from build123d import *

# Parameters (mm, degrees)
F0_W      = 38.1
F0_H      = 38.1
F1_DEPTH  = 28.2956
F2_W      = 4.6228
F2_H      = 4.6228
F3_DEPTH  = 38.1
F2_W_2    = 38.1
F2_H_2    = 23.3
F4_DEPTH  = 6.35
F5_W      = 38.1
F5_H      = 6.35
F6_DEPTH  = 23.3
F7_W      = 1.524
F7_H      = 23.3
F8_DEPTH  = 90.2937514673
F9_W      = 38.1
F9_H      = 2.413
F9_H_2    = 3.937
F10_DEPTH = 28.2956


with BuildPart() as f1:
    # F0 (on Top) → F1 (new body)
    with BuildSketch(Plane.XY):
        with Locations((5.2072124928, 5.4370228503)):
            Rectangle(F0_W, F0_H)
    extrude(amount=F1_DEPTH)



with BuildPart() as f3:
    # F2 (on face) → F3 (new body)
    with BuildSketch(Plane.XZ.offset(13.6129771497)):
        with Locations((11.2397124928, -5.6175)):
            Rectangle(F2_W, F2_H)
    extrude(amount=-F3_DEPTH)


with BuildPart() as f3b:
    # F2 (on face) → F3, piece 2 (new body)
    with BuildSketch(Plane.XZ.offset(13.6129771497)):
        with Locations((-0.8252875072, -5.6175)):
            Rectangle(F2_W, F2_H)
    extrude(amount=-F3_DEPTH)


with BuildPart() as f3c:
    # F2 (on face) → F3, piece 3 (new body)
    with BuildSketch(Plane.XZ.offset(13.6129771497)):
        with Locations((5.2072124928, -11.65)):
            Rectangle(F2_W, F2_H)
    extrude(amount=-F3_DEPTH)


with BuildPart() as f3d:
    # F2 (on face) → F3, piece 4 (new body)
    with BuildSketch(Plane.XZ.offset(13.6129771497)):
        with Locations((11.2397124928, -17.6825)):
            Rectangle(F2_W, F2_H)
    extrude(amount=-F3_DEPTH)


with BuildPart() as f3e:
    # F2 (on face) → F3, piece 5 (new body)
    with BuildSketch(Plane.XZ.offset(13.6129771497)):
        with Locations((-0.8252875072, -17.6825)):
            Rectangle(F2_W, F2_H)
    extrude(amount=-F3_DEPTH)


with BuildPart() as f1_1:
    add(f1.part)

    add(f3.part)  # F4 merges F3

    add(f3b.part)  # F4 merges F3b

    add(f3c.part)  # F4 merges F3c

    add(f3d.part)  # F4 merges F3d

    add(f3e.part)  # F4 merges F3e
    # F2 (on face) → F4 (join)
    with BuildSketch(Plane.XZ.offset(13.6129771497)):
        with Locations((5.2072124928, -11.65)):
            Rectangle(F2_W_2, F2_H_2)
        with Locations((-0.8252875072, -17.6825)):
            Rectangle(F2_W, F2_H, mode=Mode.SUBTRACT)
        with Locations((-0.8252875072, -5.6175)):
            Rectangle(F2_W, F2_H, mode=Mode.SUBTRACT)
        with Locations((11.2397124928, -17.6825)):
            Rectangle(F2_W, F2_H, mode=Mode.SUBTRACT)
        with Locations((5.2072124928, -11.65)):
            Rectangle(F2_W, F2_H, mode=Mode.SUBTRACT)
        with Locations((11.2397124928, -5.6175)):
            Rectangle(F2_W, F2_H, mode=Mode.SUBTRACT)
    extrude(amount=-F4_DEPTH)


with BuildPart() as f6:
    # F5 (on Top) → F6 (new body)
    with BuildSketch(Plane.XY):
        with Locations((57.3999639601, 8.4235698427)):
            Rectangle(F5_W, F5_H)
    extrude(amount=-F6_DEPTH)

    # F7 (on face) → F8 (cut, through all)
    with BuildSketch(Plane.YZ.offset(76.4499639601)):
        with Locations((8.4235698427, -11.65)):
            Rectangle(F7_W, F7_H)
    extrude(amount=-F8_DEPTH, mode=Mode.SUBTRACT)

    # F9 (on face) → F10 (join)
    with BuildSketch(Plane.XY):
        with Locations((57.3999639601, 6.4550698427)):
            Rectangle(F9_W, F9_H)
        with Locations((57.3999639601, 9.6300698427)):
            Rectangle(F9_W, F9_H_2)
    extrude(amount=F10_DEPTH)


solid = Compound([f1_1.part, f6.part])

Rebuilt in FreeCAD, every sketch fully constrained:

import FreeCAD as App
import Part
import Sketcher

V = App.Vector
Q = App.Units.Quantity


def add_polygon(sketch, points):
    """Adds a closed chain of lines whose ends are joined by coincident constraints."""
    first, n = sketch.GeometryCount, len(points)
    for a, b in zip(points, points[1:] + points[:1]):
        sketch.addGeometry(Part.LineSegment(App.Vector(*a, 0), App.Vector(*b, 0)), False)
    for i in range(n):
        sketch.addConstraint(Sketcher.Constraint("Coincident", first + i, 2, first + (i + 1) % n, 1))

doc = App.newDocument("Part")
body = doc.addObject("PartDesign::Body", "Body")

sketch1 = body.newObject("Sketcher::SketchObject", "Sketch")
sketch1.AttachmentSupport = (doc.getObject("XY_Plane"), [""])
sketch1.MapMode = "FlatFace"
add_polygon(sketch1, [(-14, 24), (-14, -14), (24, -14), (24, 24)])
sketch1.addConstraint([
    Sketcher.Constraint("Vertical", 0),
    Sketcher.Constraint("Horizontal", 1),
    Sketcher.Constraint("Vertical", 2),
    Sketcher.Constraint("Horizontal", 3),
    Sketcher.Constraint("Equal", 3, 0),
    Sketcher.Constraint("DistanceX", 1, 1, 1, 2, Q("1.5 in")),
    Sketcher.Constraint("DistanceX", 0, 2, -1, 1, 13.842788),
    Sketcher.Constraint("DistanceY", 0, 2, -1, 1, 13.612977),
])
pad1 = body.newObject("PartDesign::Pad", "Pad")
pad1.Profile = sketch1
pad1.Length = Q("1.114 in")
body2 = doc.addObject("PartDesign::Body", "Body001")

sketch2 = body2.newObject("Sketcher::SketchObject", "Sketch001")
sketch2.AttachmentSupport = (doc.getObject("XZ_Plane001"), [""])
sketch2.MapMode = "FlatFace"
sketch2.AttachmentOffset = App.Placement(V(0, 0, 13.612977), App.Rotation())
add_polygon(sketch2, [(8.9, -3.3), (8.9, -7.9), (13.6, -7.9), (13.6, -3.3)])
sketch2.addConstraint([
    Sketcher.Constraint("Vertical", 0),
    Sketcher.Constraint("Horizontal", 1),
    Sketcher.Constraint("Vertical", 2),
    Sketcher.Constraint("Horizontal", 3),
    Sketcher.Constraint("Equal", 3, 0),
    Sketcher.Constraint("DistanceX", 1, 1, 1, 2, Q("0.182 in")),
    Sketcher.Constraint("DistanceY", 0, 2, -1, 1, 7.9289),
    Sketcher.Constraint("DistanceX", -1, 1, 0, 2, 8.928312),
])
pad2 = body2.newObject("PartDesign::Pad", "Pad001")
pad2.Profile = sketch2
pad2.Length = Q("1.5 in")
pad2.Reversed = True
body3 = doc.addObject("PartDesign::Body", "Body002")

sketch3 = body3.newObject("Sketcher::SketchObject", "Sketch002")
sketch3.AttachmentSupport = (doc.getObject("XZ_Plane002"), [""])
sketch3.MapMode = "FlatFace"
sketch3.AttachmentOffset = App.Placement(V(0, 0, 13.612977), App.Rotation())
add_polygon(sketch3, [(-3.1, -3.3), (-3.1, -7.9), (1.5, -7.9), (1.5, -3.3)])
sketch3.addConstraint([
    Sketcher.Constraint("Vertical", 0),
    Sketcher.Constraint("Horizontal", 1),
    Sketcher.Constraint("Vertical", 2),
    Sketcher.Constraint("Horizontal", 3),
    Sketcher.Constraint("Equal", 3, 0),
    Sketcher.Constraint("DistanceX", 1, 1, 1, 2, Q("0.182 in")),
    Sketcher.Constraint("DistanceY", 0, 2, -1, 1, 7.9289),
    Sketcher.Constraint("DistanceX", 0, 2, -1, 1, 3.136688),
])
pad3 = body3.newObject("PartDesign::Pad", "Pad002")
pad3.Profile = sketch3
pad3.Length = Q("1.5 in")
pad3.Reversed = True
body4 = doc.addObject("PartDesign::Body", "Body003")

sketch4 = body4.newObject("Sketcher::SketchObject", "Sketch003")
sketch4.AttachmentSupport = (doc.getObject("XZ_Plane003"), [""])
sketch4.MapMode = "FlatFace"
sketch4.AttachmentOffset = App.Placement(V(0, 0, 13.612977), App.Rotation())
add_polygon(sketch4, [(2.9, -9.3), (2.9, -14), (7.5, -14), (7.5, -9.3)])
sketch4.addConstraint([
    Sketcher.Constraint("Vertical", 0),
    Sketcher.Constraint("Horizontal", 1),
    Sketcher.Constraint("Vertical", 2),
    Sketcher.Constraint("Horizontal", 3),
    Sketcher.Constraint("Equal", 3, 0),
    Sketcher.Constraint("DistanceX", 1, 1, 1, 2, Q("0.182 in")),
    Sketcher.Constraint("DistanceY", 0, 2, -1, 1, 13.9614),
    Sketcher.Constraint("DistanceX", -1, 1, 0, 2, 2.895812),
])
pad4 = body4.newObject("PartDesign::Pad", "Pad003")
pad4.Profile = sketch4
pad4.Length = Q("1.5 in")
pad4.Reversed = True
body5 = doc.addObject("PartDesign::Body", "Body004")

sketch5 = body5.newObject("Sketcher::SketchObject", "Sketch004")
sketch5.AttachmentSupport = (doc.getObject("XZ_Plane004"), [""])
sketch5.MapMode = "FlatFace"
sketch5.AttachmentOffset = App.Placement(V(0, 0, 13.612977), App.Rotation())
add_polygon(sketch5, [(8.9, -15.4), (8.9, -20), (13.6, -20), (13.6, -15.4)])
sketch5.addConstraint([
    Sketcher.Constraint("Vertical", 0),
    Sketcher.Constraint("Horizontal", 1),
    Sketcher.Constraint("Vertical", 2),
    Sketcher.Constraint("Horizontal", 3),
    Sketcher.Constraint("Equal", 3, 0),
    Sketcher.Constraint("DistanceX", 1, 1, 1, 2, Q("0.182 in")),
    Sketcher.Constraint("DistanceY", 0, 2, -1, 1, 19.9939),
    Sketcher.Constraint("DistanceX", -1, 1, 0, 2, 8.928312),
])
pad5 = body5.newObject("PartDesign::Pad", "Pad004")
pad5.Profile = sketch5
pad5.Length = Q("1.5 in")
pad5.Reversed = True
body6 = doc.addObject("PartDesign::Body", "Body005")

sketch6 = body6.newObject("Sketcher::SketchObject", "Sketch005")
sketch6.AttachmentSupport = (doc.getObject("XZ_Plane005"), [""])
sketch6.MapMode = "FlatFace"
sketch6.AttachmentOffset = App.Placement(V(0, 0, 13.612977), App.Rotation())
add_polygon(sketch6, [(-3.1, -15.4), (-3.1, -20), (1.5, -20), (1.5, -15.4)])
sketch6.addConstraint([
    Sketcher.Constraint("Vertical", 0),
    Sketcher.Constraint("Horizontal", 1),
    Sketcher.Constraint("Vertical", 2),
    Sketcher.Constraint("Horizontal", 3),
    Sketcher.Constraint("Equal", 3, 0),
    Sketcher.Constraint("DistanceX", 1, 1, 1, 2, Q("0.182 in")),
    Sketcher.Constraint("DistanceY", 0, 2, -1, 1, 19.9939),
    Sketcher.Constraint("DistanceX", 0, 2, -1, 1, 3.136688),
])
pad6 = body6.newObject("PartDesign::Pad", "Pad005")
pad6.Profile = sketch6
pad6.Length = Q("1.5 in")
pad6.Reversed = True
body.AllowCompound = True
doc.recompute()

boolean = body.newObject("PartDesign::Boolean", "Boolean")
boolean.Type = "Fuse"
boolean.addObjects([body2])
doc.recompute()

boolean2 = body.newObject("PartDesign::Boolean", "Boolean001")
boolean2.Type = "Fuse"
boolean2.addObjects([body3])
doc.recompute()

boolean3 = body.newObject("PartDesign::Boolean", "Boolean002")
boolean3.Type = "Fuse"
boolean3.addObjects([body4])
doc.recompute()

boolean4 = body.newObject("PartDesign::Boolean", "Boolean003")
boolean4.Type = "Fuse"
boolean4.addObjects([body5])
doc.recompute()

boolean5 = body.newObject("PartDesign::Boolean", "Boolean004")
boolean5.Type = "Fuse"
boolean5.addObjects([body6])

sketch7 = body.newObject("Sketcher::SketchObject", "Sketch006")
sketch7.AttachmentSupport = (doc.getObject("XZ_Plane"), [""])
sketch7.MapMode = "FlatFace"
sketch7.AttachmentOffset = App.Placement(V(0, 0, 13.612977), App.Rotation())
add_polygon(sketch7, [(-13.8, 0), (-13.8, -23.3), (24.3, -23.3), (24.3, 0)])
add_polygon(sketch7, [(1.5, -20), (-3.1, -20), (-3.1, -15.4), (1.5, -15.4)])
add_polygon(sketch7, [(13.6, -20), (8.9, -20), (8.9, -15.4), (13.6, -15.4)])
add_polygon(sketch7, [(7.5, -14), (2.9, -14), (2.9, -9.3), (7.5, -9.3)])
add_polygon(sketch7, [(1.5, -7.9), (-3.1, -7.9), (-3.1, -3.3), (1.5, -3.3)])
add_polygon(sketch7, [(13.6, -7.9), (8.9, -7.9), (8.9, -3.3), (13.6, -3.3)])
sketch7.addConstraint([
    Sketcher.Constraint("Vertical", 0),
    Sketcher.Constraint("Horizontal", 1),
    Sketcher.Constraint("Vertical", 2),
    Sketcher.Constraint("Horizontal", 3),
    Sketcher.Constraint("Horizontal", 4),
    Sketcher.Constraint("Vertical", 5),
    Sketcher.Constraint("Horizontal", 6),
    Sketcher.Constraint("Vertical", 7),
    Sketcher.Constraint("Horizontal", 8),
    Sketcher.Constraint("Vertical", 9),
    Sketcher.Constraint("Horizontal", 10),
    Sketcher.Constraint("Vertical", 11),
    Sketcher.Constraint("Horizontal", 12),
    Sketcher.Constraint("Vertical", 13),
    Sketcher.Constraint("Horizontal", 14),
    Sketcher.Constraint("Vertical", 15),
    Sketcher.Constraint("Horizontal", 16),
    Sketcher.Constraint("Vertical", 17),
    Sketcher.Constraint("Horizontal", 18),
    Sketcher.Constraint("Vertical", 19),
    Sketcher.Constraint("Horizontal", 20),
    Sketcher.Constraint("Vertical", 21),
    Sketcher.Constraint("Horizontal", 22),
    Sketcher.Constraint("Vertical", 23),
    Sketcher.Constraint("PointOnObject", 2, 2, -1),
    Sketcher.Constraint("Horizontal", 7, 2, 8, 2),
    Sketcher.Constraint("Horizontal", 6, 2, 9, 2),
    Sketcher.Constraint("Horizontal", 19, 2, 20, 2),
    Sketcher.Constraint("Horizontal", 18, 2, 21, 2),
    Sketcher.Constraint("Vertical", 5, 2, 16, 2),
    Sketcher.Constraint("Vertical", 7, 2, 18, 2),
    Sketcher.Constraint("Vertical", 9, 2, 20, 2),
    Sketcher.Constraint("Vertical", 11, 2, 22, 2),
    Sketcher.Constraint("Equal", 6, 8),
    Sketcher.Constraint("Equal", 10, 12),
    Sketcher.Constraint("Equal", 22, 5),
    Sketcher.Constraint("Equal", 11, 13),
    Sketcher.Constraint("Equal", 15, 17),
    Sketcher.Constraint("DistanceX", 1, 1, 1, 2, Q("1.5 in")),
    Sketcher.Constraint("DistanceX", 4, 2, 4, 1, Q("0.182 in")),
    Sketcher.Constraint("DistanceX", 7, 2, 8, 2, Q("0.293 in")),
    Sketcher.Constraint("DistanceY", 5, 2, 16, 2, Q("0.293 in")),
    Sketcher.Constraint("DistanceY", 0, 2, 0, 1, 23.3),
    Sketcher.Constraint("DistanceX", 0, 2, 4, 2, Q("0.4215 in")),
    Sketcher.Constraint("DistanceX", 6, 2, 12, 2, Q("0.0555 in")),
    Sketcher.Constraint("DistanceY", 6, 2, 12, 2, Q("0.0555 in")),
    Sketcher.Constraint("DistanceY", 4, 2, -1, 1, 19.9939),
    Sketcher.Constraint("DistanceX", 0, 2, -1, 1, 13.842788),
])
pad7 = body.newObject("PartDesign::Pad", "Pad006")
pad7.Profile = sketch7
pad7.Length = Q("0.25 in")
pad7.Reversed = True
body7 = doc.addObject("PartDesign::Body", "Body006")
body7.AllowCompound = True

sketch8 = body7.newObject("Sketcher::SketchObject", "Sketch007")
sketch8.AttachmentSupport = (doc.getObject("XY_Plane006"), [""])
sketch8.MapMode = "FlatFace"
add_polygon(sketch8, [(38, 12), (38, 5), (76, 5), (76, 12)])
sketch8.addConstraint([
    Sketcher.Constraint("Vertical", 0),
    Sketcher.Constraint("Horizontal", 1),
    Sketcher.Constraint("Vertical", 2),
    Sketcher.Constraint("Horizontal", 3),
    Sketcher.Constraint("DistanceX", 1, 1, 1, 2, Q("1.5 in")),
    Sketcher.Constraint("DistanceY", 0, 2, 0, 1, Q("0.25 in")),
    Sketcher.Constraint("DistanceY", -1, 1, 0, 2, 5.24857),
    Sketcher.Constraint("DistanceX", -1, 1, 0, 2, 38.349964),
])
pad8 = body7.newObject("PartDesign::Pad", "Pad007")
pad8.Profile = sketch8
pad8.Length = 23.3
pad8.Reversed = True

sketch9 = body7.newObject("Sketcher::SketchObject", "Sketch008")
sketch9.AttachmentSupport = (doc.getObject("YZ_Plane006"), [""])
sketch9.MapMode = "FlatFace"
sketch9.AttachmentOffset = App.Placement(V(0, 0, 76.449964), App.Rotation())
add_polygon(sketch9, [(7.7, 0), (7.7, -23.3), (9.2, -23.3), (9.2, 0)])
sketch9.addConstraint([
    Sketcher.Constraint("Vertical", 0),
    Sketcher.Constraint("Horizontal", 1),
    Sketcher.Constraint("Vertical", 2),
    Sketcher.Constraint("Horizontal", 3),
    Sketcher.Constraint("PointOnObject", 2, 2, -1),
    Sketcher.Constraint("DistanceX", 1, 1, 1, 2, Q("0.06 in")),
    Sketcher.Constraint("DistanceY", 0, 2, 0, 1, 23.3),
    Sketcher.Constraint("DistanceX", -1, 1, 0, 2, 7.66157),
])
pocket1 = body7.newObject("PartDesign::Pocket", "Pocket")
pocket1.Profile = sketch9
pocket1.Type = "ThroughAll"

sketch10 = body7.newObject("Sketcher::SketchObject", "Sketch009")
sketch10.AttachmentSupport = (doc.getObject("XY_Plane006"), [""])
sketch10.MapMode = "FlatFace"
add_polygon(sketch10, [(38, 5), (76, 5), (76, 12), (38, 12)])
sketch10.addConstraint([
    Sketcher.Constraint("Horizontal", 0),
    Sketcher.Constraint("Vertical", 1),
    Sketcher.Constraint("Horizontal", 2),
    Sketcher.Constraint("Vertical", 3),
    Sketcher.Constraint("DistanceX", 0, 1, 0, 2, Q("1.5 in")),
    Sketcher.Constraint("DistanceY", 1, 1, 1, 2, Q("0.25 in")),
    Sketcher.Constraint("DistanceY", -1, 1, 0, 2, 5.24857),
    Sketcher.Constraint("DistanceX", -1, 1, 0, 2, 76.449964),
])
pad9 = body7.newObject("PartDesign::Pad", "Pad008")
pad9.Profile = sketch10
pad9.Length = Q("1.114 in")

doc.recompute()
